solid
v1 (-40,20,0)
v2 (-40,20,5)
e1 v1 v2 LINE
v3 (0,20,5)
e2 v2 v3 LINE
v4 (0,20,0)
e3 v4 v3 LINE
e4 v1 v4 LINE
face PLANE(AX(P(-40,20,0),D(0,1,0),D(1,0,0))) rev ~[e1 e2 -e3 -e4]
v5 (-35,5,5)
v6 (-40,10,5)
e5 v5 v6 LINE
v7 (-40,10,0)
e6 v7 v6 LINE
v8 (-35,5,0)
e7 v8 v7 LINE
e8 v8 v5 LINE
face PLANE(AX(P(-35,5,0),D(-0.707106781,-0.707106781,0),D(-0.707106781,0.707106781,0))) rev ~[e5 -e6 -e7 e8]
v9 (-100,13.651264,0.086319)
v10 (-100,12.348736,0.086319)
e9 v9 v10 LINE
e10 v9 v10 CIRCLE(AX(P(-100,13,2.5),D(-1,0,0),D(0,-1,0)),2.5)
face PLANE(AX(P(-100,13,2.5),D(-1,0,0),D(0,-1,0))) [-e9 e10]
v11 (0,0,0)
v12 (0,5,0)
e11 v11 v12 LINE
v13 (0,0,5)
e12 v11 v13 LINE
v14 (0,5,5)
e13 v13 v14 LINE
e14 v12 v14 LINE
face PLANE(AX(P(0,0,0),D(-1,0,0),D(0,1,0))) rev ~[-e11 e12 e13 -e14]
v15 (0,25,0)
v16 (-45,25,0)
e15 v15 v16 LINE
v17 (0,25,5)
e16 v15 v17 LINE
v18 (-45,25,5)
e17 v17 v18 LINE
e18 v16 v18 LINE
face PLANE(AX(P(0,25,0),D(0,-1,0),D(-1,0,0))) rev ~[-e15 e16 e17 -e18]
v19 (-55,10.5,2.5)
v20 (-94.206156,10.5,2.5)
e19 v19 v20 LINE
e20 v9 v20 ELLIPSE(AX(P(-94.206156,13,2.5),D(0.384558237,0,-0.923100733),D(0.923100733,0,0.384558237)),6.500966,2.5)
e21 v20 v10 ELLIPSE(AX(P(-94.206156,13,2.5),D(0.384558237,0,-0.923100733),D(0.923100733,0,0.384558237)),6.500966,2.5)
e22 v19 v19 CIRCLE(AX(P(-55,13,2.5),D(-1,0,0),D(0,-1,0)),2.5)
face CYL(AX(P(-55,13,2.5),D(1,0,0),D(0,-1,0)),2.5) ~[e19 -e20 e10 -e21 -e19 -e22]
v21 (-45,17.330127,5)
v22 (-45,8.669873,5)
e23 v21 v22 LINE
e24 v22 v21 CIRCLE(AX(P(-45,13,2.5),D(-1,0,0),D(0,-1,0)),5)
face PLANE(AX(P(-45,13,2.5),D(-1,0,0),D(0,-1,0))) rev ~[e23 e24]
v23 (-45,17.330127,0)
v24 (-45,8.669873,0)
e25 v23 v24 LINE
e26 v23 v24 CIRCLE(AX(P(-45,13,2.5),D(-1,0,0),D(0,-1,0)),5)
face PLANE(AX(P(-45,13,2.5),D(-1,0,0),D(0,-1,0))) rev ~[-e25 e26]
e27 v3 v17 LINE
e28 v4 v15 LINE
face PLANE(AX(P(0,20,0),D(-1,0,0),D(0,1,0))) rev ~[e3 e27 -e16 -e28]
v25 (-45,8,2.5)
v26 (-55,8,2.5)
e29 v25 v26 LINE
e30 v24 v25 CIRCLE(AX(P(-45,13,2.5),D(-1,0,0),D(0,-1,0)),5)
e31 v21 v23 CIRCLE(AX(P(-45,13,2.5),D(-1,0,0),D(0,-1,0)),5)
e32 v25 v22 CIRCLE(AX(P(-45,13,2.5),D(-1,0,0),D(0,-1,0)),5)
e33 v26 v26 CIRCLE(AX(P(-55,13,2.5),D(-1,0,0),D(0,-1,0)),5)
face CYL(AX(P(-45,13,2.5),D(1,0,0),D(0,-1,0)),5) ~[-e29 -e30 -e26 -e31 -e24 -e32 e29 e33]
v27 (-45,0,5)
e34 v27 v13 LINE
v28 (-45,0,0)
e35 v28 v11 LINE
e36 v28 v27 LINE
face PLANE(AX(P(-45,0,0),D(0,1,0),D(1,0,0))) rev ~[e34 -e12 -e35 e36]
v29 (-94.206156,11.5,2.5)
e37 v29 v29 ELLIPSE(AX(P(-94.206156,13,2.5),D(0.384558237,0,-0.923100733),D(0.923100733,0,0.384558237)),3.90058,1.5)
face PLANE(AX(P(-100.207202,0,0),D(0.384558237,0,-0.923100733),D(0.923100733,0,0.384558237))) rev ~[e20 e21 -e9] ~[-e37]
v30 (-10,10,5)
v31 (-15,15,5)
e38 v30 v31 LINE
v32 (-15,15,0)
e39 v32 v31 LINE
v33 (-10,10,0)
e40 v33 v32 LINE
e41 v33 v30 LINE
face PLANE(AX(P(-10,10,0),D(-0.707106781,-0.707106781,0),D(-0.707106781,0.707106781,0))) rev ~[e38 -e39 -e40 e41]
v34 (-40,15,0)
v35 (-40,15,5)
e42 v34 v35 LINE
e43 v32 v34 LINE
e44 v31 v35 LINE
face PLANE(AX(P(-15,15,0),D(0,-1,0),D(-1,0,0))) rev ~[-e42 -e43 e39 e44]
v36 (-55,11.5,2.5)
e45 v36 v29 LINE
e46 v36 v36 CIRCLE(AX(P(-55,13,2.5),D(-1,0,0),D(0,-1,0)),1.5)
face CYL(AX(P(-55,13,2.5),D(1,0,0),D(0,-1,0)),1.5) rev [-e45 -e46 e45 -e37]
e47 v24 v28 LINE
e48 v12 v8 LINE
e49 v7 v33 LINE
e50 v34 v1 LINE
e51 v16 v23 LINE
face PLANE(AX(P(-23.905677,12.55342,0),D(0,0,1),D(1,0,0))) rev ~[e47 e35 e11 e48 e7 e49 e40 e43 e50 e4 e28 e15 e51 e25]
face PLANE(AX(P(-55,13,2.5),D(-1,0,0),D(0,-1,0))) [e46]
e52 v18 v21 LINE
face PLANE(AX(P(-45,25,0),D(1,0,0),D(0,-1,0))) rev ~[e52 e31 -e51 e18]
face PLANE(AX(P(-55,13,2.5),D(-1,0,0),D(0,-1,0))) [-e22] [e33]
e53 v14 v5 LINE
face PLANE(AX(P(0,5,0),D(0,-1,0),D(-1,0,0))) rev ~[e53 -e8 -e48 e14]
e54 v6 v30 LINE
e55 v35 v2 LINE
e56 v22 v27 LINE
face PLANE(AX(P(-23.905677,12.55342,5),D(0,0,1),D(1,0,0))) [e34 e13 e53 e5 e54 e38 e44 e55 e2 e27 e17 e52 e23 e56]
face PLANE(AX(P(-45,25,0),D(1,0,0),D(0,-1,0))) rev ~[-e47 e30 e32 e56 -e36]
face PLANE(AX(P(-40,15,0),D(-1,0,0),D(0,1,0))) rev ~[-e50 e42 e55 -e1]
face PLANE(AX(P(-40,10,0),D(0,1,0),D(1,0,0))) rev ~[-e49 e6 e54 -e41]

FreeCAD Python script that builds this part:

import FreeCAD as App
import Part
import Sketcher

V = App.Vector


def add_polygon(sketch, points):
    """Adds a closed chain of lines whose ends are joined by coincident constraints."""
    first, n = sketch.GeometryCount, len(points)
    for a, b in zip(points, points[1:] + points[:1]):
        sketch.addGeometry(Part.LineSegment(App.Vector(*a, 0), App.Vector(*b, 0)), False)
    for i in range(n):
        sketch.addConstraint(Sketcher.Constraint("Coincident", first + i, 2, first + (i + 1) % n, 1))

doc = App.newDocument("Part")
body = doc.addObject("PartDesign::Body", "Body")

sketch1 = body.newObject("Sketcher::SketchObject", "Sketch")
sketch1.AttachmentSupport = (doc.getObject("XY_Plane"), [""])
sketch1.MapMode = "FlatFace"
add_polygon(sketch1, [(-45, 0), (0, 0), (0, 5), (-35, 5), (-40, 10), (-10, 10), (-15, 15), (-40, 15), (-40, 20), (0, 20), (0, 25), (-45, 25)])
sketch1.addConstraint([
    Sketcher.Constraint("Horizontal", 0),
    Sketcher.Constraint("Vertical", 1),
    Sketcher.Constraint("Horizontal", 2),
    Sketcher.Constraint("Horizontal", 4),
    Sketcher.Constraint("Horizontal", 6),
    Sketcher.Constraint("Vertical", 7),
    Sketcher.Constraint("Horizontal", 8),
    Sketcher.Constraint("Vertical", 9),
    Sketcher.Constraint("Horizontal", 10),
    Sketcher.Constraint("Vertical", 11),
    Sketcher.Constraint("Coincident", 0, 2, -1, 1),
    Sketcher.Constraint("PointOnObject", 8, 2, -2),
    Sketcher.Constraint("Parallel", 3, 5),
    Sketcher.Constraint("Vertical", 3, 2, 6, 2),
    Sketcher.Constraint("Equal", 1, 7),
    Sketcher.Constraint("Equal", 7, 9),
    Sketcher.Constraint("Equal", 6, 11),
    Sketcher.Constraint("Equal", 3, 5),
    Sketcher.Constraint("DistanceX", 0, 1, 0, 2, 45.0),
    Sketcher.Constraint("DistanceX", 2, 2, 2, 1, 35.0),
    Sketcher.Constraint("DistanceX", 4, 1, 4, 2, 30.0),
    Sketcher.Constraint("DistanceX", 6, 2, 6, 1, 25.0),
    Sketcher.Constraint("DistanceY", 1, 1, 1, 2, 5.0),
])
pad1 = body.newObject("PartDesign::Pad", "Pad")
pad1.Profile = sketch1
pad1.Length = 5

sketch2 = body.newObject("Sketcher::SketchObject", "Sketch001")
sketch2.AttachmentSupport = (doc.getObject("YZ_Plane"), [""])
sketch2.MapMode = "FlatFace"
sketch2.AttachmentOffset = App.Placement(V(0, 0, -45), App.Rotation())
sketch2.addGeometry(Part.Circle(V(13, 2, 0), V(0, 0, 1), 5), False)
sketch2.addConstraint([
    Sketcher.Constraint("Diameter", 0, 10.0),
    Sketcher.Constraint("DistanceX", -1, 1, 0, 3, 13.0),
    Sketcher.Constraint("DistanceY", -1, 1, 0, 3, 2.5),
])
pad2 = body.newObject("PartDesign::Pad", "Pad001")
pad2.Profile = sketch2
pad2.Length = 10
pad2.Reversed = True

sketch3 = body.newObject("Sketcher::SketchObject", "Sketch002")
sketch3.AttachmentSupport = (doc.getObject("YZ_Plane"), [""])
sketch3.MapMode = "FlatFace"
sketch3.AttachmentOffset = App.Placement(V(0, 0, -55), App.Rotation())
sketch3.addGeometry([
    Part.Circle(V(13, 2.5, 0), V(0, 0, 1), 2.5),
    Part.Circle(V(13, 2.5, 0), V(0, 0, 1), 1.5),
], False)
sketch3.addConstraint([
    Sketcher.Constraint("Coincident", 1, 3, 0, 3),
    Sketcher.Constraint("Diameter", 0, 5.0),
    Sketcher.Constraint("Diameter", 1, 3.0),
    Sketcher.Constraint("DistanceX", -1, 1, 0, 3, 13.0),
    Sketcher.Constraint("DistanceY", -1, 1, 0, 3, 2.5),
])
pad3 = body.newObject("PartDesign::Pad", "Pad002")
pad3.Profile = sketch3
pad3.Length = 45
pad3.Reversed = True

sketch4 = body.newObject("Sketcher::SketchObject", "Sketch003")
sketch4.AttachmentSupport = (doc.getObject("XZ_Plane"), [""])
sketch4.MapMode = "FlatFace"
add_polygon(sketch4, [(-100, 5), (-100, 0), (-88, 5)])
sketch4.addConstraint([
    Sketcher.Constraint("Vertical", 0),
    Sketcher.Constraint("Horizontal", 2),
    Sketcher.Constraint("PointOnObject", 0, 2, -1),
    Sketcher.Constraint("DistanceX", 2, 2, 2, 1, 12.05688),
    Sketcher.Constraint("DistanceX", 0, 2, -1, 1, 100.207202),
    Sketcher.Constraint("DistanceY", 0, 2, 0, 1, 5.022824),
])
pocket1 = body.newObject("PartDesign::Pocket", "Pocket")
pocket1.Profile = sketch4
pocket1.Length = 25

doc.recompute()
